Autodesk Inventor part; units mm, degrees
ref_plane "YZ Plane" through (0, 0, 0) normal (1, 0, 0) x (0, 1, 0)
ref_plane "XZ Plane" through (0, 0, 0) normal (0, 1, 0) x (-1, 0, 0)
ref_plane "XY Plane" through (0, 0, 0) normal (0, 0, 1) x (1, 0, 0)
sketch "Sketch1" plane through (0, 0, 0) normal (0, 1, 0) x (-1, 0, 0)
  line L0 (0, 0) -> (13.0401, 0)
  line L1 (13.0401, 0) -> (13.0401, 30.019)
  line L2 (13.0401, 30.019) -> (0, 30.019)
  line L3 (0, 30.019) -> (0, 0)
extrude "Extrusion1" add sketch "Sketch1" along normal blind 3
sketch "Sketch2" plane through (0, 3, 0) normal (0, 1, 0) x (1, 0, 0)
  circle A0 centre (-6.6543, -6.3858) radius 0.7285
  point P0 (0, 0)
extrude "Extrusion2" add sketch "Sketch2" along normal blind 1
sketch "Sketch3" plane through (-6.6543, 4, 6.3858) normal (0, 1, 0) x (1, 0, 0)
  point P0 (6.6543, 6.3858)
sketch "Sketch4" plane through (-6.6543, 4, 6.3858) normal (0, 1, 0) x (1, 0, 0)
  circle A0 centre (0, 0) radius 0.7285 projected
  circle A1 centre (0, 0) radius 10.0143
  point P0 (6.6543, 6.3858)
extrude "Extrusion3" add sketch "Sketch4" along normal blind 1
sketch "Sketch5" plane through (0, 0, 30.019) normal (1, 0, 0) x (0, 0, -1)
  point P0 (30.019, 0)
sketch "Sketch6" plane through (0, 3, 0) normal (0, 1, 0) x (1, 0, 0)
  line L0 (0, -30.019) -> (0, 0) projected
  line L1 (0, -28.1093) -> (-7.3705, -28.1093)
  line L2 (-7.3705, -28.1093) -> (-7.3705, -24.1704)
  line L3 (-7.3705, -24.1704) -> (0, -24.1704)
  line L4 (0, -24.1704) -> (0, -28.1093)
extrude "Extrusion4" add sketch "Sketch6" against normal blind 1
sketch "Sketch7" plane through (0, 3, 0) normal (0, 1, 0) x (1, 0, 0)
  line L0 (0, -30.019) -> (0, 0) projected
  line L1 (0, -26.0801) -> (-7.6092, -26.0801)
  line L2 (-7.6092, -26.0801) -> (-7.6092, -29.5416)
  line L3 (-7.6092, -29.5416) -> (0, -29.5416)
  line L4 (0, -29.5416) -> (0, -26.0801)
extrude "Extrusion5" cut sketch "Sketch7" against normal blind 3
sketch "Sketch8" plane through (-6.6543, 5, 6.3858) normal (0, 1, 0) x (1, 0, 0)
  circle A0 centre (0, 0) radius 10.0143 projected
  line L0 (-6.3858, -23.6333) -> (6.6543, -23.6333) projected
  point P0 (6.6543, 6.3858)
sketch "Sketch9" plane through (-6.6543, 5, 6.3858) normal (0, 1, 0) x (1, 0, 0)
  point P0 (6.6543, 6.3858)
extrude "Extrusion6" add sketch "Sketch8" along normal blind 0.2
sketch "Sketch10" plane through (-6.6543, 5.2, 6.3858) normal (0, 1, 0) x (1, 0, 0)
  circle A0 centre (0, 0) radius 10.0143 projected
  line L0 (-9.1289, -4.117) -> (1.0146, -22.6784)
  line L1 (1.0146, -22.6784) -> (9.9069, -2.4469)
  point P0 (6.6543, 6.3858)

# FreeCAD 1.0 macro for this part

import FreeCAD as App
import Part
import Sketcher
from FreeCAD import Vector
Q = App.Units.Quantity

doc = App.newDocument("Part")
body = doc.addObject("PartDesign::Body", "Body")
body.AllowCompound = True

sketch1 = doc.addObject("Sketcher::SketchObject", "Sketch")
body.addObject(sketch1)
sketch1.AttachmentSupport = (doc.XZ_Plane, [""])
sketch1.MapMode = "FlatFace"
sketch1.addGeometry([
    Part.LineSegment(Vector(0, 30, 0), Vector(0, 0, 0)),
    Part.LineSegment(Vector(0, 0, 0), Vector(-13, 0, 0)),
    Part.LineSegment(Vector(-13, 0, 0), Vector(-13, 30, 0)),
    Part.LineSegment(Vector(-13, 30, 0), Vector(0, 30, 0)),
], False)
sketch1.addConstraint([
    Sketcher.Constraint("Coincident", 0, 2, 1, 1),
    Sketcher.Constraint("Coincident", 1, 2, 2, 1),
    Sketcher.Constraint("Coincident", 2, 2, 3, 1),
    Sketcher.Constraint("Coincident", 3, 2, 0, 1),
    Sketcher.Constraint("Vertical", 0),
    Sketcher.Constraint("Horizontal", 1),
    Sketcher.Constraint("Vertical", 2),
    Sketcher.Constraint("Horizontal", 3),
    Sketcher.Constraint("Coincident", 0, 2, -1, 1),
    Sketcher.Constraint("DistanceX", 1, 2, 1, 1, Q("13.04 mm")),
    Sketcher.Constraint("DistanceY", 0, 2, 0, 1, Q("30.019 mm")),
])
pad1 = doc.addObject("PartDesign::Pad", "Pad")
body.addObject(pad1)
pad1.Profile = sketch1
pad1.Length = 3
pad1.Reversed = True

sketch2 = doc.addObject("Sketcher::SketchObject", "Sketch001")
body.addObject(sketch2)
sketch2.AttachmentSupport = (doc.XZ_Plane, [""])
sketch2.MapMode = "FlatFace"
sketch2.AttachmentOffset = App.Placement(Vector(0, 0, -3), App.Rotation())
sketch2.addGeometry(Part.Circle(Vector(-6.7, 6.4, 0), Vector(0, 0, 1), 0.7), False)
sketch2.addConstraint([
    Sketcher.Constraint("Diameter", 0, Q("1.457 mm")),
    Sketcher.Constraint("DistanceX", 0, 3, -1, 1, Q("6.6543 mm")),
    Sketcher.Constraint("DistanceY", -1, 1, 0, 3, Q("6.3858 mm")),
])
pad2 = doc.addObject("PartDesign::Pad", "Pad001")
body.addObject(pad2)
pad2.Profile = sketch2
pad2.Length = 1
pad2.Reversed = True

sketch3 = doc.addObject("Sketcher::SketchObject", "Sketch002")
body.addObject(sketch3)
sketch3.AttachmentSupport = (doc.XZ_Plane, [""])
sketch3.MapMode = "FlatFace"
sketch3.AttachmentOffset = App.Placement(Vector(0, 0, -4), App.Rotation())
sketch3.addGeometry([
    Part.Circle(Vector(-6.7, 6.4, 0), Vector(0, 0, 1), 10),
    Part.Circle(Vector(-6.7, 6.4, 0), Vector(0, 0, 1), 0.7),
], False)
sketch3.addConstraint([
    Sketcher.Constraint("Coincident", 1, 3, 0, 3),
    Sketcher.Constraint("Diameter", 1, Q("1.457 mm")),
    Sketcher.Constraint("Diameter", 0, Q("20.0286 mm")),
    Sketcher.Constraint("DistanceX", 0, 3, -1, 1, Q("6.6543 mm")),
    Sketcher.Constraint("DistanceY", -1, 1, 0, 3, Q("6.3858 mm")),
])
pad3 = doc.addObject("PartDesign::Pad", "Pad002")
body.addObject(pad3)
pad3.Profile = sketch3
pad3.Length = 1
pad3.Reversed = True

sketch4 = doc.addObject("Sketcher::SketchObject", "Sketch003")
body.addObject(sketch4)
sketch4.AttachmentSupport = (doc.XZ_Plane, [""])
sketch4.MapMode = "FlatFace"
sketch4.AttachmentOffset = App.Placement(Vector(0, 0, -3), App.Rotation())
sketch4.addGeometry([
    Part.LineSegment(Vector(-7.4, 28.1, 0), Vector(0, 28.1, 0)),
    Part.LineSegment(Vector(0, 28.1, 0), Vector(0, 24.2, 0)),
    Part.LineSegment(Vector(0, 24.2, 0), Vector(-7.4, 24.2, 0)),
    Part.LineSegment(Vector(-7.4, 24.2, 0), Vector(-7.4, 28.1, 0)),
], False)
sketch4.addConstraint([
    Sketcher.Constraint("Coincident", 0, 2, 1, 1),
    Sketcher.Constraint("Coincident", 1, 2, 2, 1),
    Sketcher.Constraint("Coincident", 2, 2, 3, 1),
    Sketcher.Constraint("Coincident", 3, 2, 0, 1),
    Sketcher.Constraint("Horizontal", 0),
    Sketcher.Constraint("Vertical", 1),
    Sketcher.Constraint("Horizontal", 2),
    Sketcher.Constraint("Vertical", 3),
    Sketcher.Constraint("PointOnObject", 0, 2, -2),
    Sketcher.Constraint("DistanceY", 1, 2, 1, 1, Q("3.939 mm")),
    Sketcher.Constraint("DistanceX", 0, 1, 0, 2, Q("7.3705 mm")),
    Sketcher.Constraint("DistanceY", -1, 1, 0, 2, Q("28.1093 mm")),
])
pad4 = doc.addObject("PartDesign::Pad", "Pad003")
body.addObject(pad4)
pad4.Profile = sketch4
pad4.Length = 1

sketch5 = doc.addObject("Sketcher::SketchObject", "Sketch004")
body.addObject(sketch5)
sketch5.AttachmentSupport = (doc.XZ_Plane, [""])
sketch5.MapMode = "FlatFace"
sketch5.AttachmentOffset = App.Placement(Vector(0, 0, -3), App.Rotation())
sketch5.addGeometry([
    Part.LineSegment(Vector(-7.6, 29.5, 0), Vector(0, 29.5, 0)),
    Part.LineSegment(Vector(0, 29.5, 0), Vector(0, 26.1, 0)),
    Part.LineSegment(Vector(0, 26.1, 0), Vector(-7.6, 26.1, 0)),
    Part.LineSegment(Vector(-7.6, 26.1, 0), Vector(-7.6, 29.5, 0)),
], False)
sketch5.addConstraint([
    Sketcher.Constraint("Coincident", 0, 2, 1, 1),
    Sketcher.Constraint("Coincident", 1, 2, 2, 1),
    Sketcher.Constraint("Coincident", 2, 2, 3, 1),
    Sketcher.Constraint("Coincident", 3, 2, 0, 1),
    Sketcher.Constraint("Horizontal", 0),
    Sketcher.Constraint("Vertical", 1),
    Sketcher.Constraint("Horizontal", 2),
    Sketcher.Constraint("Vertical", 3),
    Sketcher.Constraint("PointOnObject", 0, 2, -2),
    Sketcher.Constraint("DistanceY", -1, 1, 1, 2, Q("26.08 mm")),
    Sketcher.Constraint("DistanceX", 0, 1, 0, 2, Q("7.6092 mm")),
    Sketcher.Constraint("DistanceY", 1, 2, 1, 1, Q("3.4615 mm")),
])
pocket1 = doc.addObject("PartDesign::Pocket", "Pocket")
body.addObject(pocket1)
pocket1.Profile = sketch5
pocket1.Length = 3
pocket1.Reversed = True

sketch6 = doc.addObject("Sketcher::SketchObject", "Sketch005")
body.addObject(sketch6)
sketch6.AttachmentSupport = (doc.XZ_Plane, [""])
sketch6.MapMode = "FlatFace"
sketch6.AttachmentOffset = App.Placement(Vector(0, 0, -5), App.Rotation())
sketch6.addGeometry(Part.Circle(Vector(-7, 6, 0), Vector(0, 0, 1), 10), False)
sketch6.addConstraint([
    Sketcher.Constraint("Diameter", 0, Q("20.0286 mm")),
    Sketcher.Constraint("DistanceX", 0, 3, -1, 1, Q("6.6543 mm")),
    Sketcher.Constraint("DistanceY", -1, 1, 0, 3, Q("6.3858 mm")),
])
pad5 = doc.addObject("PartDesign::Pad", "Pad004")
body.addObject(pad5)
pad5.Profile = sketch6
pad5.Length = 0.2
pad5.Reversed = True

doc.recompute()
